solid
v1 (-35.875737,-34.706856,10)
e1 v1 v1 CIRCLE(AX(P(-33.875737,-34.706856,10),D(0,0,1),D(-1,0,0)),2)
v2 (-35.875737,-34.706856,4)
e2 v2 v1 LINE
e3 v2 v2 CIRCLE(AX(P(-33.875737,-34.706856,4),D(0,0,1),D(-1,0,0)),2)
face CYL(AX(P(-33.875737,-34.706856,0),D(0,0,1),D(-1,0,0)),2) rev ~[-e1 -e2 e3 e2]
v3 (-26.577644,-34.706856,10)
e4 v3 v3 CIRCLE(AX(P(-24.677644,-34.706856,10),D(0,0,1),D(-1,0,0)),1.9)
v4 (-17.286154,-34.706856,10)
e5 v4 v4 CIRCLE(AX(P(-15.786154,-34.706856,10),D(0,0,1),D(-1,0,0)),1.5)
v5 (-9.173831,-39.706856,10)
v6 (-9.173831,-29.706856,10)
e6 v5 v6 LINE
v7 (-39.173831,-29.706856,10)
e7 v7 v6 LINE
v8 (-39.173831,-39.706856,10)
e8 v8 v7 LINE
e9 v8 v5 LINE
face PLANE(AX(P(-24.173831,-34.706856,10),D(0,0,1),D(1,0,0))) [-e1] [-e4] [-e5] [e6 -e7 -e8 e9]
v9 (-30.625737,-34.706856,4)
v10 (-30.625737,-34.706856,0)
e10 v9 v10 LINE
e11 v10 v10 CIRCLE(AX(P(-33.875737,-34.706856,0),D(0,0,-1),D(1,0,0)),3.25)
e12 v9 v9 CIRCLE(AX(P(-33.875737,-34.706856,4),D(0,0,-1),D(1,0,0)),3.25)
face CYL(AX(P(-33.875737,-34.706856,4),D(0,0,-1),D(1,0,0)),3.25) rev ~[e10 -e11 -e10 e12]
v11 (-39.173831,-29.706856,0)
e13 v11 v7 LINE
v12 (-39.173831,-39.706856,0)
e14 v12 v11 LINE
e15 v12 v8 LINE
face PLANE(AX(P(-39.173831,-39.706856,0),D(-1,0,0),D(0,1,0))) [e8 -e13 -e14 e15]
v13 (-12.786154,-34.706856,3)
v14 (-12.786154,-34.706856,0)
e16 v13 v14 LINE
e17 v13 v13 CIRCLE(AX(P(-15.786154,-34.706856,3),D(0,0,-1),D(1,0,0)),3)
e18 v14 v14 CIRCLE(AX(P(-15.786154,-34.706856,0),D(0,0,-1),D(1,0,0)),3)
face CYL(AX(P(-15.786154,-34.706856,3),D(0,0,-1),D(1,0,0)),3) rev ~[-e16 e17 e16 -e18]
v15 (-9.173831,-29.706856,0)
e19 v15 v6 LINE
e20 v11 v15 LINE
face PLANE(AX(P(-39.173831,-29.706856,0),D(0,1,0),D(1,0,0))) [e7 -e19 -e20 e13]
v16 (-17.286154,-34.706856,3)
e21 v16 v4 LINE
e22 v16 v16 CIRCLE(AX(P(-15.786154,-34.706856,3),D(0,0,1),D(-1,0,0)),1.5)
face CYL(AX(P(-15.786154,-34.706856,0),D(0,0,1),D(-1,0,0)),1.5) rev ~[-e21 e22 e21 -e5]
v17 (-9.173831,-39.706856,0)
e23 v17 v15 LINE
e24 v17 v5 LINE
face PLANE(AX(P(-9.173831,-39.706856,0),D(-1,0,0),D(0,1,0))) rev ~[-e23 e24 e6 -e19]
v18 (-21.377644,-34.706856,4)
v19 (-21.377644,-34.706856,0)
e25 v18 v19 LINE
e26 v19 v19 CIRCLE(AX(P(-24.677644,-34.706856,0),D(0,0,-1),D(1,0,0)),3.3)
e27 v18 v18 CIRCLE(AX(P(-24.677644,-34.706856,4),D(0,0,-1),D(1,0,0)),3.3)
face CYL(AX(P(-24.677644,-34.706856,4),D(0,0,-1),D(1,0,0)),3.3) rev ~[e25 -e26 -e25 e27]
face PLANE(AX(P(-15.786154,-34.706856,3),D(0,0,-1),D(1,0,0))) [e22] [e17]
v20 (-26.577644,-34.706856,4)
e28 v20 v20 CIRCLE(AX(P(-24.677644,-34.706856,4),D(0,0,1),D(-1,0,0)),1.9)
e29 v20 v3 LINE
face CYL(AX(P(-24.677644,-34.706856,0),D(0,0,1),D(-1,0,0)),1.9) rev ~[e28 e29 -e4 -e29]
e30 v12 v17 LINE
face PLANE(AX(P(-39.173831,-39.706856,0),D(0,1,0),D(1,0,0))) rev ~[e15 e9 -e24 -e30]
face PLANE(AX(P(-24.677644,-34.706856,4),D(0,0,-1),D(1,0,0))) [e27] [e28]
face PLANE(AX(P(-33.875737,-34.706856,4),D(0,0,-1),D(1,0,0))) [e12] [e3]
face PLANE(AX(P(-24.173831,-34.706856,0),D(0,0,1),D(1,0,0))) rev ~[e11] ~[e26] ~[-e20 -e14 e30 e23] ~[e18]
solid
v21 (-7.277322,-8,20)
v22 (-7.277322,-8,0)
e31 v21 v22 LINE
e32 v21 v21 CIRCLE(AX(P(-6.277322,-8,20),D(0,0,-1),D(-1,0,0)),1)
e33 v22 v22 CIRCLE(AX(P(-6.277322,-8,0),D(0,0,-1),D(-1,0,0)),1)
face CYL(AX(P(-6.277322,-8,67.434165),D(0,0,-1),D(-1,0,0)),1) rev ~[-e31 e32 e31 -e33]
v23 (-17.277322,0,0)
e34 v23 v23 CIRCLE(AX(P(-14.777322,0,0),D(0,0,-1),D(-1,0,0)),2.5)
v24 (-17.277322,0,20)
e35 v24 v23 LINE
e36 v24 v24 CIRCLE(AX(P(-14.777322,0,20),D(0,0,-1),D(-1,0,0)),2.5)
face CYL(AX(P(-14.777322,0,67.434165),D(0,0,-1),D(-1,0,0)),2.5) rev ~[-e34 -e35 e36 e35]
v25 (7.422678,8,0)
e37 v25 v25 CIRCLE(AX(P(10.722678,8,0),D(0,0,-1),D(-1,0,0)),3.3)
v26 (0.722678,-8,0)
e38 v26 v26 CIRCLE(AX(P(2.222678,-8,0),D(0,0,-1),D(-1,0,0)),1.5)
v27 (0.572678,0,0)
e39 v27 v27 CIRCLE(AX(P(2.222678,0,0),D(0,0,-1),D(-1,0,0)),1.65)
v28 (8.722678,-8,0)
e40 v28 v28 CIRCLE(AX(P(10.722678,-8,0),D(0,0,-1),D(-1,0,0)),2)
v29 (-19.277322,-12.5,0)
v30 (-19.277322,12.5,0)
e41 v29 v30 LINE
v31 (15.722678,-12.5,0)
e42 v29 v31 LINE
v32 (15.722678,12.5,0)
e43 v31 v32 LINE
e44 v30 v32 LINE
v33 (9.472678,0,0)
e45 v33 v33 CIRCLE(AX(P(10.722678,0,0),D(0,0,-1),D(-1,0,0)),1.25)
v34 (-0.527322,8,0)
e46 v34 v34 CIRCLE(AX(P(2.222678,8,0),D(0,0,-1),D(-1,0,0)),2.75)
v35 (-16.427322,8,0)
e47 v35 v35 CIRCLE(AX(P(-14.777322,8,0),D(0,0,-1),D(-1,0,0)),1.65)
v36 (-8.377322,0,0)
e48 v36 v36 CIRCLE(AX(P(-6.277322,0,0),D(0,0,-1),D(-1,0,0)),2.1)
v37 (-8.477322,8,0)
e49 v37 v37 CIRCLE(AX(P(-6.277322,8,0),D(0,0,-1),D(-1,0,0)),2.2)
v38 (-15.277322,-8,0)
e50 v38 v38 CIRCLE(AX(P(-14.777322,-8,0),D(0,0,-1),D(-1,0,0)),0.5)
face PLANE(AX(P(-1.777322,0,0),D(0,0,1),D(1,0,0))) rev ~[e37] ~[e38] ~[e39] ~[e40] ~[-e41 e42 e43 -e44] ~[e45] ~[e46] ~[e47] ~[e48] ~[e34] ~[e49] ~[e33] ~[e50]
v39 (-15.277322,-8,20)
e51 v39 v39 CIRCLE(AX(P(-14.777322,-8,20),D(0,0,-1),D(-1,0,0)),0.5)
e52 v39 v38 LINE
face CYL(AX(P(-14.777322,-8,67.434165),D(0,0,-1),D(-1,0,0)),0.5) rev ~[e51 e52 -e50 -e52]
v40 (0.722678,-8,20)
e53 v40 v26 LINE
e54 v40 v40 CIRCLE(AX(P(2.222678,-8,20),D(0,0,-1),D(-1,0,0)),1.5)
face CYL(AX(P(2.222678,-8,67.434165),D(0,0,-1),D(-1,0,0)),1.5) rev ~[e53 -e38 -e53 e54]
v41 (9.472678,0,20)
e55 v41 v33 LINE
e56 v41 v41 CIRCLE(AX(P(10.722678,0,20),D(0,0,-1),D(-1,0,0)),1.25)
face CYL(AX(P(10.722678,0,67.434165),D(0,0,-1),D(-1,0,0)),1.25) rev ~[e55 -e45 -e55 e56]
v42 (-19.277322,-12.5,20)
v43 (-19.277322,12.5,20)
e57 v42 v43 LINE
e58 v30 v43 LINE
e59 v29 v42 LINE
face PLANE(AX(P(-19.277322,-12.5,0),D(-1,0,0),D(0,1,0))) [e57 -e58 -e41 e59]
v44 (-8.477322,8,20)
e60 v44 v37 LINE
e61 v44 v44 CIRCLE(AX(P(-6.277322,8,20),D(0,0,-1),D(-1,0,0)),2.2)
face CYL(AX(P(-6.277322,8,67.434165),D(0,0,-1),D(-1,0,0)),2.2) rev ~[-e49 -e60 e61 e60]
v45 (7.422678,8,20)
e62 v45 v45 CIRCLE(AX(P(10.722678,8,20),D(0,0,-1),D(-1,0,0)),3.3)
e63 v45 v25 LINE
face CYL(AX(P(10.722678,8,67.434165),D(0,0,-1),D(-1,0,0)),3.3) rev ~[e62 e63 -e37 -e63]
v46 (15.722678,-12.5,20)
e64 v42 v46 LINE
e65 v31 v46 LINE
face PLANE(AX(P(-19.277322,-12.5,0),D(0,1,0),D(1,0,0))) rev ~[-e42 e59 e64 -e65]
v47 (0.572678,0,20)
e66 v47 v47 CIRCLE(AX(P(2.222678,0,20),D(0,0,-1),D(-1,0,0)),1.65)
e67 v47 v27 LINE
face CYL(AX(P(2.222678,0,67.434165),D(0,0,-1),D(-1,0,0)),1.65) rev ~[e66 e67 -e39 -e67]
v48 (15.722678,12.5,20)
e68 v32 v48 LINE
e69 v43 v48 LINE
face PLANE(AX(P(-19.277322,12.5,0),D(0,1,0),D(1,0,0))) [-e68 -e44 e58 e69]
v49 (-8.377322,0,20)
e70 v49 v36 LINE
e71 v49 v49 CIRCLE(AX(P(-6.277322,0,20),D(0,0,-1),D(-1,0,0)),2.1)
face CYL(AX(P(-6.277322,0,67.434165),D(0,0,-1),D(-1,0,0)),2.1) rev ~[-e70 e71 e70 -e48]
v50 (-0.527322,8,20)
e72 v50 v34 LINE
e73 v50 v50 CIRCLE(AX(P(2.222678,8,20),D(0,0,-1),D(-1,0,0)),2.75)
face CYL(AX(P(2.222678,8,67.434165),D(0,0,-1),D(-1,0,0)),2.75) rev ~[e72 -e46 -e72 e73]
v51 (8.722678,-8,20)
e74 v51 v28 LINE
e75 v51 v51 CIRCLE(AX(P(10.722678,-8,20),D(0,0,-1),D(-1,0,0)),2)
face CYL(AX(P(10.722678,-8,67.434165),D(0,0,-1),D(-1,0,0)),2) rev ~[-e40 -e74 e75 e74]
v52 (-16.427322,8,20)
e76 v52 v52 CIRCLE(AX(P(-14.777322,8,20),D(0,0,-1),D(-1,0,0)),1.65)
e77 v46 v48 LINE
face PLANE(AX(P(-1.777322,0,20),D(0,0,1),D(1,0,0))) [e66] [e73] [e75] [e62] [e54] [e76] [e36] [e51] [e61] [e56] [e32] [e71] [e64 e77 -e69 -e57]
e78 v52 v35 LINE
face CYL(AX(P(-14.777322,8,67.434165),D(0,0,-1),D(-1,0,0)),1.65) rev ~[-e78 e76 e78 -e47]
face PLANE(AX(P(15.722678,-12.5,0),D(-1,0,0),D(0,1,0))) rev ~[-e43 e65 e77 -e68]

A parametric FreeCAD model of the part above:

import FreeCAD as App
import Part
import Sketcher

V = App.Vector
Q = App.Units.Quantity

doc = App.newDocument("Part")
body = doc.addObject("PartDesign::Body", "Body")

# Sketch on XY plane
sketch1 = body.newObject("Sketcher::SketchObject", "Sketch")
sketch1.AttachmentSupport = (doc.getObject("XY_Plane"), [""])
sketch1.MapMode = "FlatFace"
sketch1.addGeometry([
    Part.LineSegment(V(-19.277322, 12.5, 0), V(-19.277322, -12.5, 0)),
    Part.LineSegment(V(-19.277322, -12.5, 0), V(15.722678, -12.5, 0)),
    Part.LineSegment(V(15.722678, -12.5, 0), V(15.722678, 12.5, 0)),
    Part.LineSegment(V(15.722678, 12.5, 0), V(-19.277322, 12.5, 0)),
], False)
sketch1.addConstraint([
    Sketcher.Constraint("Coincident", 0, 2, 1, 1),
    Sketcher.Constraint("Coincident", 1, 2, 2, 1),
    Sketcher.Constraint("Coincident", 2, 2, 3, 1),
    Sketcher.Constraint("Coincident", 3, 2, 0, 1),
    Sketcher.Constraint("Vertical", 0),
    Sketcher.Constraint("Horizontal", 1),
    Sketcher.Constraint("Vertical", 2),
    Sketcher.Constraint("Horizontal", 3),
    Sketcher.Constraint("DistanceX", 1, 1, 1, 2, Q("35 mm")),
    Sketcher.Constraint("DistanceY", 0, 2, 0, 1, Q("25 mm")),
    Sketcher.Constraint("DistanceY", 0, 2, -1, 1, Q("12.5 mm")),
    Sketcher.Constraint("DistanceX", 0, 2, -1, 1, Q("19.277322 mm")),
])
pad1 = body.newObject("PartDesign::Pad", "Pad")
pad1.Profile = sketch1
pad1.Length = 20

# Sketch on XY plane
sketch2 = body.newObject("Sketcher::SketchObject", "Sketch001")
sketch2.AttachmentSupport = (doc.getObject("XY_Plane"), [""])
sketch2.MapMode = "FlatFace"
sketch2.AttachmentOffset = App.Placement(V(0, 0, 20), App.Rotation())
sketch2.addGeometry(Part.Circle(V(-14.777322, 8, 0), V(0, 0, 1), 1.65), False)
sketch2.addConstraint([
    Sketcher.Constraint("Diameter", 0, Q("3.3 mm")),
    Sketcher.Constraint("DistanceY", -1, 1, 0, 3, Q("8 mm")),
    Sketcher.Constraint("DistanceX", 0, 3, -1, 1, Q("14.777322 mm")),
])
doc.recompute()
hole = body.newObject("PartDesign::Hole", "Hole")
hole.Profile = sketch2
hole.ThreadType = "None"
hole.Diameter = 3.3
hole.DepthType = "ThroughAll"

# Sketch on XY plane
sketch3 = body.newObject("Sketcher::SketchObject", "Sketch002")
sketch3.AttachmentSupport = (doc.getObject("XY_Plane"), [""])
sketch3.MapMode = "FlatFace"
sketch3.AttachmentOffset = App.Placement(V(0, 0, 20), App.Rotation())
sketch3.addGeometry(Part.Circle(V(-6.277322, 8, 0), V(0, 0, 1), 2.2), False)
sketch3.addConstraint([
    Sketcher.Constraint("Diameter", 0, Q("4.4 mm")),
    Sketcher.Constraint("DistanceY", -1, 1, 0, 3, Q("8 mm")),
    Sketcher.Constraint("DistanceX", 0, 3, -1, 1, Q("6.277322 mm")),
])
doc.recompute()
hole2 = body.newObject("PartDesign::Hole", "Hole001")
hole2.Profile = sketch3
hole2.ThreadType = "None"
hole2.Diameter = 4.4
hole2.DepthType = "ThroughAll"

# Sketch on XY plane
sketch4 = body.newObject("Sketcher::SketchObject", "Sketch003")
sketch4.AttachmentSupport = (doc.getObject("XY_Plane"), [""])
sketch4.MapMode = "FlatFace"
sketch4.AttachmentOffset = App.Placement(V(0, 0, 20), App.Rotation())
sketch4.addGeometry(Part.Circle(V(2.222678, 8, 0), V(0, 0, 1), 2.75), False)
sketch4.addConstraint([
    Sketcher.Constraint("Diameter", 0, Q("5.5 mm")),
    Sketcher.Constraint("DistanceY", -1, 1, 0, 3, Q("8 mm")),
    Sketcher.Constraint("DistanceX", -1, 1, 0, 3, Q("2.222678 mm")),
])
doc.recompute()
hole3 = body.newObject("PartDesign::Hole", "Hole002")
hole3.Profile = sketch4
hole3.ThreadType = "None"
hole3.Diameter = 5.5
hole3.DepthType = "ThroughAll"

# Sketch on XY plane
sketch5 = body.newObject("Sketcher::SketchObject", "Sketch004")
sketch5.AttachmentSupport = (doc.getObject("XY_Plane"), [""])
sketch5.MapMode = "FlatFace"
sketch5.AttachmentOffset = App.Placement(V(0, 0, 20), App.Rotation())
sketch5.addGeometry(Part.Circle(V(10.722678, 8, 0), V(0, 0, 1), 3.3), False)
sketch5.addConstraint([
    Sketcher.Constraint("Diameter", 0, Q("6.6 mm")),
    Sketcher.Constraint("DistanceY", -1, 1, 0, 3, Q("8 mm")),
    Sketcher.Constraint("DistanceX", -1, 1, 0, 3, Q("10.722678 mm")),
])
doc.recompute()
hole4 = body.newObject("PartDesign::Hole", "Hole003")
hole4.Profile = sketch5
hole4.ThreadType = "None"
hole4.Diameter = 6.6
hole4.DepthType = "ThroughAll"

# Sketch on XY plane
sketch6 = body.newObject("Sketcher::SketchObject", "Sketch005")
sketch6.AttachmentSupport = (doc.getObject("XY_Plane"), [""])
sketch6.MapMode = "FlatFace"
sketch6.AttachmentOffset = App.Placement(V(0, 0, 20), App.Rotation())
sketch6.addGeometry(Part.Circle(V(-14.777322, 0, 0), V(0, 0, 1), 2.5), False)
sketch6.addConstraint([
    Sketcher.Constraint("PointOnObject", 0, 3, -1),
    Sketcher.Constraint("Diameter", 0, Q("5 mm")),
    Sketcher.Constraint("DistanceX", 0, 3, -1, 1, Q("14.777322 mm")),
])
doc.recompute()
hole5 = body.newObject("PartDesign::Hole", "Hole004")
hole5.Profile = sketch6
hole5.ThreadType = "None"
hole5.Diameter = 5
hole5.DepthType = "ThroughAll"

# Sketch on XY plane
sketch7 = body.newObject("Sketcher::SketchObject", "Sketch006")
sketch7.AttachmentSupport = (doc.getObject("XY_Plane"), [""])
sketch7.MapMode = "FlatFace"
sketch7.AttachmentOffset = App.Placement(V(0, 0, 20), App.Rotation())
sketch7.addGeometry(Part.Circle(V(-6.277322, 0, 0), V(0, 0, 1), 2.1), False)
sketch7.addConstraint([
    Sketcher.Constraint("PointOnObject", 0, 3, -1),
    Sketcher.Constraint("Diameter", 0, Q("4.2 mm")),
    Sketcher.Constraint("DistanceX", 0, 3, -1, 1, Q("6.277322 mm")),
])
doc.recompute()
hole6 = body.newObject("PartDesign::Hole", "Hole005")
hole6.Profile = sketch7
hole6.ThreadType = "None"
hole6.Diameter = 4.2
hole6.DepthType = "ThroughAll"

# Sketch on XY plane
sketch8 = body.newObject("Sketcher::SketchObject", "Sketch007")
sketch8.AttachmentSupport = (doc.getObject("XY_Plane"), [""])
sketch8.MapMode = "FlatFace"
sketch8.AttachmentOffset = App.Placement(V(0, 0, 20), App.Rotation())
sketch8.addGeometry(Part.Circle(V(2.222678, 0, 0), V(0, 0, 1), 1.65), False)
sketch8.addConstraint([
    Sketcher.Constraint("PointOnObject", 0, 3, -1),
    Sketcher.Constraint("Diameter", 0, Q("3.3 mm")),
    Sketcher.Constraint("DistanceX", -1, 1, 0, 3, Q("2.222678 mm")),
])
doc.recompute()
hole7 = body.newObject("PartDesign::Hole", "Hole006")
hole7.Profile = sketch8
hole7.ThreadType = "None"
hole7.Diameter = 3.3
hole7.DepthType = "ThroughAll"

# Sketch on XY plane
sketch9 = body.newObject("Sketcher::SketchObject", "Sketch008")
sketch9.AttachmentSupport = (doc.getObject("XY_Plane"), [""])
sketch9.MapMode = "FlatFace"
sketch9.AttachmentOffset = App.Placement(V(0, 0, 20), App.Rotation())
sketch9.addGeometry(Part.Circle(V(10.722678, 0, 0), V(0, 0, 1), 1.25), False)
sketch9.addConstraint([
    Sketcher.Constraint("PointOnObject", 0, 3, -1),
    Sketcher.Constraint("Diameter", 0, Q("2.5 mm")),
    Sketcher.Constraint("DistanceX", -1, 1, 0, 3, Q("10.722678 mm")),
])
doc.recompute()
hole8 = body.newObject("PartDesign::Hole", "Hole007")
hole8.Profile = sketch9
hole8.ThreadType = "None"
hole8.Diameter = 2.5
hole8.DepthType = "ThroughAll"

# Sketch on XY plane
sketch10 = body.newObject("Sketcher::SketchObject", "Sketch009")
sketch10.AttachmentSupport = (doc.getObject("XY_Plane"), [""])
sketch10.MapMode = "FlatFace"
sketch10.AttachmentOffset = App.Placement(V(0, 0, 20), App.Rotation())
sketch10.addGeometry(Part.Circle(V(-14.777322, -8, 0), V(0, 0, 1), 0.5), False)
sketch10.addConstraint([
    Sketcher.Constraint("Diameter", 0, Q("1 mm")),
    Sketcher.Constraint("DistanceY", 0, 3, -1, 1, Q("8 mm")),
    Sketcher.Constraint("DistanceX", 0, 3, -1, 1, Q("14.777322 mm")),
])
doc.recompute()
hole9 = body.newObject("PartDesign::Hole", "Hole008")
hole9.Profile = sketch10
hole9.ThreadType = "None"
hole9.Diameter = 1
hole9.DepthType = "ThroughAll"

# Sketch on XY plane
sketch11 = body.newObject("Sketcher::SketchObject", "Sketch010")
sketch11.AttachmentSupport = (doc.getObject("XY_Plane"), [""])
sketch11.MapMode = "FlatFace"
sketch11.AttachmentOffset = App.Placement(V(0, 0, 20), App.Rotation())
sketch11.addGeometry(Part.Circle(V(-6.277322, -8, 0), V(0, 0, 1), 1), False)
sketch11.addConstraint([
    Sketcher.Constraint("Diameter", 0, Q("2 mm")),
    Sketcher.Constraint("DistanceY", 0, 3, -1, 1, Q("8 mm")),
    Sketcher.Constraint("DistanceX", 0, 3, -1, 1, Q("6.277322 mm")),
])
doc.recompute()
hole10 = body.newObject("PartDesign::Hole", "Hole009")
hole10.Profile = sketch11
hole10.ThreadType = "None"
hole10.Diameter = 2
hole10.DepthType = "ThroughAll"

# Sketch on XY plane
sketch12 = body.newObject("Sketcher::SketchObject", "Sketch011")
sketch12.AttachmentSupport = (doc.getObject("XY_Plane"), [""])
sketch12.MapMode = "FlatFace"
sketch12.AttachmentOffset = App.Placement(V(0, 0, 20), App.Rotation())
sketch12.addGeometry(Part.Circle(V(2.222678, -8, 0), V(0, 0, 1), 1.5), False)
sketch12.addConstraint([
    Sketcher.Constraint("Diameter", 0, Q("3 mm")),
    Sketcher.Constraint("DistanceY", 0, 3, -1, 1, Q("8 mm")),
    Sketcher.Constraint("DistanceX", -1, 1, 0, 3, Q("2.222678 mm")),
])
doc.recompute()
hole11 = body.newObject("PartDesign::Hole", "Hole010")
hole11.Profile = sketch12
hole11.ThreadType = "None"
hole11.Diameter = 3
hole11.DepthType = "ThroughAll"

# Sketch on XY plane
sketch13 = body.newObject("Sketcher::SketchObject", "Sketch012")
sketch13.AttachmentSupport = (doc.getObject("XY_Plane"), [""])
sketch13.MapMode = "FlatFace"
sketch13.AttachmentOffset = App.Placement(V(0, 0, 20), App.Rotation())
sketch13.addGeometry(Part.Circle(V(10.722678, -8, 0), V(0, 0, 1), 2), False)
sketch13.addConstraint([
    Sketcher.Constraint("Diameter", 0, Q("4 mm")),
    Sketcher.Constraint("DistanceY", 0, 3, -1, 1, Q("8 mm")),
    Sketcher.Constraint("DistanceX", -1, 1, 0, 3, Q("10.722678 mm")),
])
doc.recompute()
hole12 = body.newObject("PartDesign::Hole", "Hole011")
hole12.Profile = sketch13
hole12.ThreadType = "None"
hole12.Diameter = 4
hole12.DepthType = "ThroughAll"
body2 = doc.addObject("PartDesign::Body", "Body001")

# Sketch on XY plane
sketch14 = body2.newObject("Sketcher::SketchObject", "Sketch013")
sketch14.AttachmentSupport = (doc.getObject("XY_Plane001"), [""])
sketch14.MapMode = "FlatFace"
sketch14.addGeometry([
    Part.LineSegment(V(-39.173831, -29.706856, 0), V(-39.173831, -39.706856, 0)),
    Part.LineSegment(V(-39.173831, -39.706856, 0), V(-9.173831, -39.706856, 0)),
    Part.LineSegment(V(-9.173831, -39.706856, 0), V(-9.173831, -29.706856, 0)),
    Part.LineSegment(V(-9.173831, -29.706856, 0), V(-39.173831, -29.706856, 0)),
], False)
sketch14.addConstraint([
    Sketcher.Constraint("Coincident", 0, 2, 1, 1),
    Sketcher.Constraint("Coincident", 1, 2, 2, 1),
    Sketcher.Constraint("Coincident", 2, 2, 3, 1),
    Sketcher.Constraint("Coincident", 3, 2, 0, 1),
    Sketcher.Constraint("Vertical", 0),
    Sketcher.Constraint("Horizontal", 1),
    Sketcher.Constraint("Vertical", 2),
    Sketcher.Constraint("Horizontal", 3),
    Sketcher.Constraint("DistanceX", 1, 1, 1, 2, Q("30 mm")),
    Sketcher.Constraint("DistanceY", 0, 2, 0, 1, Q("10 mm")),
    Sketcher.Constraint("DistanceX", 0, 2, -1, 1, Q("39.173831 mm")),
    Sketcher.Constraint("DistanceY", 0, 2, -1, 1, Q("39.706856 mm")),
])
pad2 = body2.newObject("PartDesign::Pad", "Pad001")
pad2.Profile = sketch14
pad2.Length = 10

# Sketch on XY plane
sketch15 = body2.newObject("Sketcher::SketchObject", "Sketch014")
sketch15.AttachmentSupport = (doc.getObject("XY_Plane001"), [""])
sketch15.MapMode = "FlatFace"
sketch15.addGeometry(Part.Circle(V(-33.875737, -34.706856, 0), V(0, 0, 1), 2), False)
sketch15.addConstraint([
    Sketcher.Constraint("Diameter", 0, Q("4 mm")),
    Sketcher.Constraint("DistanceX", 0, 3, -1, 1, Q("33.875737 mm")),
    Sketcher.Constraint("DistanceY", 0, 3, -1, 1, Q("34.706856 mm")),
])
doc.recompute()
hole13 = body2.newObject("PartDesign::Hole", "Hole012")
hole13.Profile = sketch15
hole13.ThreadType = "None"
hole13.Diameter = 4
hole13.DepthType = "ThroughAll"
hole13.HoleCutType = "Counterbore"
hole13.HoleCutDiameter = 6.5
hole13.HoleCutDepth = 4
hole13.Reversed = True

# Sketch on XY plane
sketch16 = body2.newObject("Sketcher::SketchObject", "Sketch015")
sketch16.AttachmentSupport = (doc.getObject("XY_Plane001"), [""])
sketch16.MapMode = "FlatFace"
sketch16.addGeometry(Part.Circle(V(-24.677644, -34.706856, 0), V(0, 0, 1), 1.9), False)
sketch16.addConstraint([
    Sketcher.Constraint("Diameter", 0, Q("3.8 mm")),
    Sketcher.Constraint("DistanceX", 0, 3, -1, 1, Q("24.677644 mm")),
    Sketcher.Constraint("DistanceY", 0, 3, -1, 1, Q("34.706856 mm")),
])
doc.recompute()
hole14 = body2.newObject("PartDesign::Hole", "Hole013")
hole14.Profile = sketch16
hole14.ThreadType = "None"
hole14.Diameter = 3.8
hole14.DepthType = "ThroughAll"
hole14.HoleCutType = "Counterbore"
hole14.HoleCutDiameter = 6.6
hole14.HoleCutDepth = 4
hole14.Reversed = True

# Sketch on XY plane
sketch17 = body2.newObject("Sketcher::SketchObject", "Sketch016")
sketch17.AttachmentSupport = (doc.getObject("XY_Plane001"), [""])
sketch17.MapMode = "FlatFace"
sketch17.addGeometry(Part.Circle(V(-15.786154, -34.706856, 0), V(0, 0, 1), 1.5), False)
sketch17.addConstraint([
    Sketcher.Constraint("Diameter", 0, Q("3 mm")),
    Sketcher.Constraint("DistanceX", 0, 3, -1, 1, Q("15.786154 mm")),
    Sketcher.Constraint("DistanceY", 0, 3, -1, 1, Q("34.706856 mm")),
])
doc.recompute()
hole15 = body2.newObject("PartDesign::Hole", "Hole014")
hole15.Profile = sketch17
hole15.ThreadType = "None"
hole15.Diameter = 3
hole15.DepthType = "ThroughAll"
hole15.HoleCutType = "Counterbore"
hole15.HoleCutDiameter = 6
hole15.HoleCutDepth = 3
hole15.Reversed = True

doc.recompute()
